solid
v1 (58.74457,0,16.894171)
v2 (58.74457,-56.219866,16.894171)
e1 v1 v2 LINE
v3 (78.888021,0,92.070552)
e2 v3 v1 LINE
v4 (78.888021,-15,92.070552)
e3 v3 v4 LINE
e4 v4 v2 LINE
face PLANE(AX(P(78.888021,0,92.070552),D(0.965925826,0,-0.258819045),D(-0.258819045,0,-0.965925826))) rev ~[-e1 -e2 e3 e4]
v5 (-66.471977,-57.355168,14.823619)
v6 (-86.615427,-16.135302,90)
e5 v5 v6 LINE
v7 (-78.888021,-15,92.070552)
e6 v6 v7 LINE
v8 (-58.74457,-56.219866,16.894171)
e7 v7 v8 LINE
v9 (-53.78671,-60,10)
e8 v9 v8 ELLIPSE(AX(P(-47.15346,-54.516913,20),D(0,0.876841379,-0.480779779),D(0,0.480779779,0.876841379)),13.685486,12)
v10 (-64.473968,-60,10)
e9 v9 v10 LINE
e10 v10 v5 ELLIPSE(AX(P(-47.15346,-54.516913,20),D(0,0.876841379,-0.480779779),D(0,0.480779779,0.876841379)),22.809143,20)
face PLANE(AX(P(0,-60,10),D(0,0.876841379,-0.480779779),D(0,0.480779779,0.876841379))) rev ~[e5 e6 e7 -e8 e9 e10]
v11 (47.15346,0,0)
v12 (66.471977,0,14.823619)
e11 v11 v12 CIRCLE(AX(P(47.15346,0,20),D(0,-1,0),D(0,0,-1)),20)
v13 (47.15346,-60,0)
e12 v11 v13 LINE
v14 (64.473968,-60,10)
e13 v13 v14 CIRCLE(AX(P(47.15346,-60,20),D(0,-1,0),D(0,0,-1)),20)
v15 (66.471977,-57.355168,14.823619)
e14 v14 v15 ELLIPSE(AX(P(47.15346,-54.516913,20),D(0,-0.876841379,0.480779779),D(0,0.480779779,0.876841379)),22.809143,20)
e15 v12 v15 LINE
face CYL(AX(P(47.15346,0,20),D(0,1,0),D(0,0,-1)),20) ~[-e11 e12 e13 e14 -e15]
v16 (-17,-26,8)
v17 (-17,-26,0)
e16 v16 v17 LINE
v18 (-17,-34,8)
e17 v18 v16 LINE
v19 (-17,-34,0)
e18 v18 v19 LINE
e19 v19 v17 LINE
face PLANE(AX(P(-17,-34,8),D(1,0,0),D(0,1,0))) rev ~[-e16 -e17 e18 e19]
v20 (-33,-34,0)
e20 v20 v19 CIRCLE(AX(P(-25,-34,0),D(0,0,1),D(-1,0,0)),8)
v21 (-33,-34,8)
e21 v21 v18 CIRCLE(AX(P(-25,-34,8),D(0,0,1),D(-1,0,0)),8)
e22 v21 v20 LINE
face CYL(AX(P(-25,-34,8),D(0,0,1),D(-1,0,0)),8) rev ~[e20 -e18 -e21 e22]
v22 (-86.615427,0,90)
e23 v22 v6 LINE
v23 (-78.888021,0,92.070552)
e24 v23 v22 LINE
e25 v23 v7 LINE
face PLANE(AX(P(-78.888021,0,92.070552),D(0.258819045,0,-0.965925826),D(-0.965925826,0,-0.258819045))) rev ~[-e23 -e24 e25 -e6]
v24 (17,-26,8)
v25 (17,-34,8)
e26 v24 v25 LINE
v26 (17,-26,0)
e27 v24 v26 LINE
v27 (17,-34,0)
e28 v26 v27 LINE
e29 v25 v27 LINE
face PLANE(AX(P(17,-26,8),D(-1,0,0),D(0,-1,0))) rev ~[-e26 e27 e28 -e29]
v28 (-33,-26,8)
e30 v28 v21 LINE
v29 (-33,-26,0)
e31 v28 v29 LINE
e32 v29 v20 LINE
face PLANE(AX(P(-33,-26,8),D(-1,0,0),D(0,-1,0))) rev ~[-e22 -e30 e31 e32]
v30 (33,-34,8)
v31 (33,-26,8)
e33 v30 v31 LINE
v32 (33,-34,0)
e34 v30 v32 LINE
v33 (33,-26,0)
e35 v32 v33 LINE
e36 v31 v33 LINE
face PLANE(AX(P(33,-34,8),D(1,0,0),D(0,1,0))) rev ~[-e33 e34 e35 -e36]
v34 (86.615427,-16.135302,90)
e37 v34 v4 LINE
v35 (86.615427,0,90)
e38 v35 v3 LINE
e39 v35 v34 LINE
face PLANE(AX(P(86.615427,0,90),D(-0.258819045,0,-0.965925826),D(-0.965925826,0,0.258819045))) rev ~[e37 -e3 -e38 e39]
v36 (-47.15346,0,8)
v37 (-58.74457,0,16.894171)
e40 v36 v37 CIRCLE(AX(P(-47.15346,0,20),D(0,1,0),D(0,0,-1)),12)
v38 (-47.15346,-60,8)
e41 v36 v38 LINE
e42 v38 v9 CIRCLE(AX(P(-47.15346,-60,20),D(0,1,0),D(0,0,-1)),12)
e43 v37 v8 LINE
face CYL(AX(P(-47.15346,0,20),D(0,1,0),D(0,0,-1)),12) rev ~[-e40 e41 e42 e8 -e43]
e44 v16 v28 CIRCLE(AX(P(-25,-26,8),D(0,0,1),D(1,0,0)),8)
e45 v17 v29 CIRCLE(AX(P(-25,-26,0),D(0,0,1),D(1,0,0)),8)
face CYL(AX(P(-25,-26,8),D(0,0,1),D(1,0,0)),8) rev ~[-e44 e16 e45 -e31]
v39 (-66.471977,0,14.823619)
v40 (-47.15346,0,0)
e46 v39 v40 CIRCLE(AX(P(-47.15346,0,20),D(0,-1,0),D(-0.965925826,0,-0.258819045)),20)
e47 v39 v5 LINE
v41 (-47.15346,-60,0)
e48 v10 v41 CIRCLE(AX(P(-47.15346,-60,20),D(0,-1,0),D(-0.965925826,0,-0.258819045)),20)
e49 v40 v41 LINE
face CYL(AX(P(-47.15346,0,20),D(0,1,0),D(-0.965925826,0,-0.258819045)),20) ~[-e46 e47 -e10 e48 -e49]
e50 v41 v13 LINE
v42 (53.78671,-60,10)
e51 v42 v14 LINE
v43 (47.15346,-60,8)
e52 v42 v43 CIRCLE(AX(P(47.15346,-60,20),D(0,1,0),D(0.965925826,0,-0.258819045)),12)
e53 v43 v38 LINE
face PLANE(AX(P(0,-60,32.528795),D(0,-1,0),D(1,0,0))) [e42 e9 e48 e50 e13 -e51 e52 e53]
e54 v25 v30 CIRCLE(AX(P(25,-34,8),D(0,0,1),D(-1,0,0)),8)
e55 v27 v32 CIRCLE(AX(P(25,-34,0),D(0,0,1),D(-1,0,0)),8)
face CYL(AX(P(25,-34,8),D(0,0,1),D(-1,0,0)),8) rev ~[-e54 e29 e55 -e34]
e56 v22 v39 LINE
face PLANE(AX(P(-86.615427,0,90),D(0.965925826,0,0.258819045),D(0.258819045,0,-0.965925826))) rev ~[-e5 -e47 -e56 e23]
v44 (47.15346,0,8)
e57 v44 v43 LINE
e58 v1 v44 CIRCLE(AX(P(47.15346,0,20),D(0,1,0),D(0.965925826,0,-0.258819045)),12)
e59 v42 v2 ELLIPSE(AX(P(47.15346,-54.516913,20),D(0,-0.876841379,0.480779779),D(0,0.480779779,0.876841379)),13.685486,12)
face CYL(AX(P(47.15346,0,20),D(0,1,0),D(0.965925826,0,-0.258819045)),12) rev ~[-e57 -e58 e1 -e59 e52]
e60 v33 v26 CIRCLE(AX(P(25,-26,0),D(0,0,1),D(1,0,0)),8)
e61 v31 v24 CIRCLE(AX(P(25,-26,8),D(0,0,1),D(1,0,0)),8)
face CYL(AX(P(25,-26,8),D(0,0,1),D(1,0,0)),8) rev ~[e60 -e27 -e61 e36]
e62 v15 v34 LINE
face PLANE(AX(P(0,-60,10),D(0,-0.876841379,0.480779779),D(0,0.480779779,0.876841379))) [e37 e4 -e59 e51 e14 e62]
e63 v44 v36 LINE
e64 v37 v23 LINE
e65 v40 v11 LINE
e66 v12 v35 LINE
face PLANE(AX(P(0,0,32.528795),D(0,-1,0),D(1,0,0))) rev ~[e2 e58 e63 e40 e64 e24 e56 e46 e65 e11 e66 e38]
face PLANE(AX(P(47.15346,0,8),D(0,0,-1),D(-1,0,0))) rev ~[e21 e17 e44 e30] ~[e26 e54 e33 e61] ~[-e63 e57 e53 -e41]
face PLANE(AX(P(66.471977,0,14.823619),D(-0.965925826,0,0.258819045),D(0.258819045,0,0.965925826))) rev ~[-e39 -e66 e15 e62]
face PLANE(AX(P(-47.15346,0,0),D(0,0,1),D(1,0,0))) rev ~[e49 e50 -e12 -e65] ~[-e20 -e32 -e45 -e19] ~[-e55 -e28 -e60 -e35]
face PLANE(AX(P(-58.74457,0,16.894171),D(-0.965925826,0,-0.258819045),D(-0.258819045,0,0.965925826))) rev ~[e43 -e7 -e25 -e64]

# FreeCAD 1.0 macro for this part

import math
import FreeCAD as App
import Part
import Sketcher

V = App.Vector
Q = App.Units.Quantity


def add_polygon(sketch, points):
    """Adds a closed chain of lines whose ends are joined by coincident constraints."""
    first, n = sketch.GeometryCount, len(points)
    for a, b in zip(points, points[1:] + points[:1]):
        sketch.addGeometry(Part.LineSegment(App.Vector(*a, 0), App.Vector(*b, 0)), False)
    for i in range(n):
        sketch.addConstraint(Sketcher.Constraint("Coincident", first + i, 2, first + (i + 1) % n, 1))

doc = App.newDocument("Part")
params = doc.addObject("Spreadsheet::Sheet", "Params")
for row, (alias, value) in enumerate([
    ("sketch1_radius", "20 mm"),
    ("sketch1_radius2", "12 mm"),
    ("pad1_length", "60 mm"),
    ("sketch2_width", "45 mm"),
    ("sketch3_radius", "8 mm"),
    ("sketch3_height", "8 mm"),
], start=1):
    params.set(f"A{row}", alias)
    params.set(f"B{row}", "=" + value)
    params.setAlias(f"B{row}", alias)

body = doc.addObject("PartDesign::Body", "Body")

# Sketch on XZ plane
sketch1 = body.newObject("Sketcher::SketchObject", "Sketch")
sketch1.AttachmentSupport = (doc.getObject("XZ_Plane"), [""])
sketch1.MapMode = "FlatFace"
sketch1.addGeometry(Part.ArcOfCircle(Part.Circle(V(-47, 20, 0), V(0, 0, 1), 20), math.radians(-165), math.radians(-90)), False)
sketch1.addGeometry(Part.LineSegment(V(-47, 0, 0), V(47, 0, 0)), False)
sketch1.addGeometry(Part.ArcOfCircle(Part.Circle(V(47, 20, 0), V(0, 0, 1), 20), math.radians(-90), math.radians(-15)), False)
sketch1.addGeometry(Part.LineSegment(V(66, 15, 0), V(87, 90, 0)), False)
sketch1.addGeometry(Part.LineSegment(V(87, 90, 0), V(79, 92, 0)), False)
sketch1.addGeometry(Part.LineSegment(V(79, 92, 0), V(59, 17, 0)), False)
sketch1.addGeometry(Part.ArcOfCircle(Part.Circle(V(47, 20, 0), V(0, 0, 1), 12), math.radians(-90), math.radians(-15)), False)
sketch1.addGeometry(Part.LineSegment(V(47, 8, 0), V(-47, 8, 0)), False)
sketch1.addGeometry(Part.ArcOfCircle(Part.Circle(V(-47, 20, 0), V(0, 0, 1), 12), math.radians(-165), math.radians(-90)), False)
sketch1.addGeometry(Part.LineSegment(V(-59, 17, 0), V(-79, 92, 0)), False)
sketch1.addGeometry(Part.LineSegment(V(-79, 92, 0), V(-87, 90, 0)), False)
sketch1.addGeometry(Part.LineSegment(V(-87, 90, 0), V(-66, 15, 0)), False)
sketch1.addConstraint(Sketcher.Constraint("Tangent", 0, 2, 1, 1))
sketch1.addConstraint(Sketcher.Constraint("Tangent", 1, 2, 2, 1))
sketch1.addConstraint(Sketcher.Constraint("Tangent", 2, 2, 3, 1))
sketch1.addConstraint(Sketcher.Constraint("Coincident", 3, 2, 4, 1))
sketch1.addConstraint(Sketcher.Constraint("Coincident", 4, 2, 5, 1))
sketch1.addConstraint(Sketcher.Constraint("Tangent", 5, 2, 6, 2))
sketch1.addConstraint(Sketcher.Constraint("Tangent", 6, 1, 7, 1))
sketch1.addConstraint(Sketcher.Constraint("Tangent", 7, 2, 8, 2))
sketch1.addConstraint(Sketcher.Constraint("Tangent", 8, 1, 9, 1))
sketch1.addConstraint(Sketcher.Constraint("Coincident", 9, 2, 10, 1))
sketch1.addConstraint(Sketcher.Constraint("Coincident", 10, 2, 11, 1))
sketch1.addConstraint(Sketcher.Constraint("Tangent", 11, 2, 0, 1))
sketch1.addConstraint(Sketcher.Constraint("Horizontal", 1))
sketch1.addConstraint(Sketcher.Constraint("Horizontal", 7))
sketch1.addConstraint(Sketcher.Constraint("Coincident", 6, 3, 2, 3))
sketch1.addConstraint(Sketcher.Constraint("Coincident", 8, 3, 0, 3))
sketch1.addConstraint(Sketcher.Constraint("Equal", 0, 2))
sketch1.addConstraint(Sketcher.Constraint("Symmetric", 0, 2, 1, 2, -1, 1))
sketch1.addConstraint(Sketcher.Constraint("Symmetric", 4, 2, 9, 2, -2))
sketch1.addConstraint(Sketcher.Constraint("Symmetric", 3, 2, 10, 2, -2))
sketch1.addConstraint(Sketcher.Constraint("Perpendicular", 3, 4))
sketch1.addConstraint(Sketcher.Constraint("Perpendicular", 4, 5))
sketch1.addConstraint(Sketcher.Constraint("Radius", 0, 20.0))
sketch1.addConstraint(Sketcher.Constraint("Radius", 6, 12.0))
sketch1.addConstraint(Sketcher.Constraint("Angle", 3, Q("75 deg")))
sketch1.addConstraint(Sketcher.Constraint("DistanceY", -1, 1, 3, 2, 90.0))
sketch1.addConstraint(Sketcher.Constraint("DistanceX", 1, 1, 1, 2, 94.30692))
sketch1.setExpression("Constraints[22]", "Params.sketch1_radius")
sketch1.setExpression("Constraints[23]", "Params.sketch1_radius2")
pad1 = body.newObject("PartDesign::Pad", "Pad")
pad1.Profile = sketch1
pad1.setExpression("Length", "Params.pad1_length")

# Sketch on YZ plane
sketch2 = body.newObject("Sketcher::SketchObject", "Sketch001")
sketch2.AttachmentSupport = (doc.getObject("YZ_Plane"), [""])
sketch2.MapMode = "FlatFace"
add_polygon(sketch2, [(-15, 92), (-60, 92), (-60, 10)])  # lines 0-2
sketch2.addConstraint(Sketcher.Constraint("Horizontal", 0))
sketch2.addConstraint(Sketcher.Constraint("Vertical", 1))
sketch2.addConstraint(Sketcher.Constraint("DistanceX", 0, 2, 0, 1, 45.0))
sketch2.addConstraint(Sketcher.Constraint("DistanceX", 0, 2, -1, 1, 60.0))
sketch2.addConstraint(Sketcher.Constraint("DistanceY", -1, 1, 1, 2, 10.0))
sketch2.addConstraint(Sketcher.Constraint("DistanceY", 1, 2, 1, 1, 82.070552))
sketch2.setExpression("Constraints[5]", "Params.sketch2_width")
pocket1 = body.newObject("PartDesign::Pocket", "Pocket")
pocket1.Profile = sketch2
pocket1.Type = "ThroughAll"
pocket1.Midplane = True

# Sketch on XY plane
sketch3 = body.newObject("Sketcher::SketchObject", "Sketch002")
sketch3.AttachmentSupport = (doc.getObject("XY_Plane"), [""])
sketch3.MapMode = "FlatFace"
sketch3.AttachmentOffset = App.Placement(V(0, 0, 8), App.Rotation())
sketch3.addGeometry(Part.LineSegment(V(-33, -26, 0), V(-33, -34, 0)), False)
sketch3.addGeometry(Part.ArcOfCircle(Part.Circle(V(-25, -34, 0), V(0, 0, 1), 8), math.radians(180), math.radians(360)), False)
sketch3.addGeometry(Part.LineSegment(V(-17, -34, 0), V(-17, -26, 0)), False)
sketch3.addGeometry(Part.ArcOfCircle(Part.Circle(V(-25, -26, 0), V(0, 0, 1), 8), math.radians(0), math.radians(180)), False)
sketch3.addGeometry(Part.ArcOfCircle(Part.Circle(V(25, -26, 0), V(0, 0, 1), 8), math.radians(0), math.radians(180)), False)
sketch3.addGeometry(Part.LineSegment(V(17, -26, 0), V(17, -34, 0)), False)
sketch3.addGeometry(Part.ArcOfCircle(Part.Circle(V(25, -34, 0), V(0, 0, 1), 8), math.radians(180), math.radians(360)), False)
sketch3.addGeometry(Part.LineSegment(V(33, -34, 0), V(33, -26, 0)), False)
sketch3.addConstraint(Sketcher.Constraint("Tangent", 0, 2, 1, 1))
sketch3.addConstraint(Sketcher.Constraint("Tangent", 1, 2, 2, 1))
sketch3.addConstraint(Sketcher.Constraint("Tangent", 2, 2, 3, 1))
sketch3.addConstraint(Sketcher.Constraint("Tangent", 3, 2, 0, 1))
sketch3.addConstraint(Sketcher.Constraint("Tangent", 4, 2, 5, 1))
sketch3.addConstraint(Sketcher.Constraint("Tangent", 5, 2, 6, 1))
sketch3.addConstraint(Sketcher.Constraint("Tangent", 6, 2, 7, 1))
sketch3.addConstraint(Sketcher.Constraint("Tangent", 7, 2, 4, 1))
sketch3.addConstraint(Sketcher.Constraint("Vertical", 0))
sketch3.addConstraint(Sketcher.Constraint("Vertical", 2))
sketch3.addConstraint(Sketcher.Constraint("Vertical", 5))
sketch3.addConstraint(Sketcher.Constraint("Vertical", 7))
sketch3.addConstraint(Sketcher.Constraint("Equal", 3, 4))
sketch3.addConstraint(Sketcher.Constraint("Symmetric", 3, 3, 4, 3, -2))
sketch3.addConstraint(Sketcher.Constraint("Horizontal", 1, 3, 6, 3))
sketch3.addConstraint(Sketcher.Constraint("Radius", 1, 8.0))
sketch3.addConstraint(Sketcher.Constraint("DistanceY", 0, 2, 0, 1, 8.0))
sketch3.addConstraint(Sketcher.Constraint("DistanceX", 1, 3, -1, 1, 25.0))
sketch3.addConstraint(Sketcher.Constraint("DistanceY", 1, 3, -1, 1, 34.0))
sketch3.setExpression("Constraints[15]", "Params.sketch3_radius")
sketch3.setExpression("Constraints[16]", "Params.sketch3_height")
pocket2 = body.newObject("PartDesign::Pocket", "Pocket001")
pocket2.Profile = sketch3
pocket2.Type = "ThroughAll"

doc.recompute()
